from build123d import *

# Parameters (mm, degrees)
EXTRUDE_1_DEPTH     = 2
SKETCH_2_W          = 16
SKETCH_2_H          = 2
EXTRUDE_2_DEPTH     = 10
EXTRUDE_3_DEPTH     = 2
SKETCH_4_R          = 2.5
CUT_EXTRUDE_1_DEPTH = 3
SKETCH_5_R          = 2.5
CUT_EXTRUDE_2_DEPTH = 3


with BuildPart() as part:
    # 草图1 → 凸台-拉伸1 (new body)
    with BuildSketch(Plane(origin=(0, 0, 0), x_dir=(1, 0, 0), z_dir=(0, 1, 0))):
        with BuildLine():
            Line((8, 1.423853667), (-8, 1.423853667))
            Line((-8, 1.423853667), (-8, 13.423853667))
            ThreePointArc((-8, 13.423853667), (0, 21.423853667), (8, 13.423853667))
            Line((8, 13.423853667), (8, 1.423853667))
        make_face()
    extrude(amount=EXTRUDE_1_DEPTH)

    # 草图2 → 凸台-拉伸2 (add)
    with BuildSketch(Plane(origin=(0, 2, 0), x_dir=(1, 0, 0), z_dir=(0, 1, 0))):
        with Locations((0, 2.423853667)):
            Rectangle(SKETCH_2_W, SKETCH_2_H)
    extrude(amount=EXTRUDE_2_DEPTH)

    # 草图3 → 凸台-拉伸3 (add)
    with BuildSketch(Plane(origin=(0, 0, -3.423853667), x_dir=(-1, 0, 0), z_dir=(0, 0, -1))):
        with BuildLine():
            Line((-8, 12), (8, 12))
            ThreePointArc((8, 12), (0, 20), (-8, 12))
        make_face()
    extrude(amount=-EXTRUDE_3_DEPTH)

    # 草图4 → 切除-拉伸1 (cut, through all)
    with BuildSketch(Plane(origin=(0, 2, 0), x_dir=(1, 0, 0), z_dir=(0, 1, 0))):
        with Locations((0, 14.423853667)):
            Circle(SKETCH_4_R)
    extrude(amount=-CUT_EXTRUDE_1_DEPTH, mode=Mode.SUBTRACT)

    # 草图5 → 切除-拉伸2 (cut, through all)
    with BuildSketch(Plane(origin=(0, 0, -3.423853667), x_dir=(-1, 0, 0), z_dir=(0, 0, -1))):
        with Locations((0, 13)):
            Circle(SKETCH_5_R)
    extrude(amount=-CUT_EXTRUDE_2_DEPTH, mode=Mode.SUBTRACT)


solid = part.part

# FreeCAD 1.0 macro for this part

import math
import FreeCAD as App
import Part
import Sketcher
from FreeCAD import Vector

doc = App.newDocument("Part")
body = doc.addObject("PartDesign::Body", "Body")

# Sketch on XZ plane
sketch1 = doc.addObject("Sketcher::SketchObject", "Sketch")
body.addObject(sketch1)
sketch1.AttachmentSupport = (doc.XZ_Plane, [""])
sketch1.MapMode = "FlatFace"
sketch1.addGeometry([
    Part.LineSegment(Vector(-8, -1.423854, 0), Vector(8, -1.423854, 0)),
    Part.LineSegment(Vector(8, -1.423854, 0), Vector(8, -13.423854, 0)),
    Part.ArcOfCircle(Part.Circle(Vector(0, -13.423854, 0), Vector(0, 0, 1), 8), math.radians(180), math.radians(360)),
    Part.LineSegment(Vector(-8, -13.423854, 0), Vector(-8, -1.423854, 0)),
], False)
sketch1.addConstraint([
    Sketcher.Constraint("Coincident", 0, 2, 1, 1),
    Sketcher.Constraint("Tangent", 1, 2, 2, 2),
    Sketcher.Constraint("Tangent", 2, 1, 3, 1),
    Sketcher.Constraint("Coincident", 3, 2, 0, 1),
    Sketcher.Constraint("Horizontal", 0),
    Sketcher.Constraint("Vertical", 1),
    Sketcher.Constraint("Vertical", 3),
    Sketcher.Constraint("PointOnObject", 2, 3, -2),
    Sketcher.Constraint("Radius", 2, 8.0),
    Sketcher.Constraint("DistanceY", 1, 2, 1, 1, 12.0),
    Sketcher.Constraint("DistanceY", 2, 3, -1, 1, 13.423854),
])
pad1 = doc.addObject("PartDesign::Pad", "Pad")
body.addObject(pad1)
pad1.Profile = sketch1
pad1.Length = 2
pad1.Reversed = True

# Sketch on XZ plane
sketch2 = doc.addObject("Sketcher::SketchObject", "Sketch001")
body.addObject(sketch2)
sketch2.AttachmentSupport = (doc.XZ_Plane, [""])
sketch2.MapMode = "FlatFace"
sketch2.AttachmentOffset = App.Placement(Vector(0, 0, -2), App.Rotation())
sketch2.addGeometry([
    Part.LineSegment(Vector(-8, -3.423854, 0), Vector(-8, -1.423854, 0)),
    Part.LineSegment(Vector(-8, -1.423854, 0), Vector(8, -1.423854, 0)),
    Part.LineSegment(Vector(8, -1.423854, 0), Vector(8, -3.423854, 0)),
    Part.LineSegment(Vector(8, -3.423854, 0), Vector(-8, -3.423854, 0)),
], False)
sketch2.addConstraint([
    Sketcher.Constraint("Coincident", 0, 2, 1, 1),
    Sketcher.Constraint("Coincident", 1, 2, 2, 1),
    Sketcher.Constraint("Coincident", 2, 2, 3, 1),
    Sketcher.Constraint("Coincident", 3, 2, 0, 1),
    Sketcher.Constraint("Vertical", 0),
    Sketcher.Constraint("Horizontal", 1),
    Sketcher.Constraint("Vertical", 2),
    Sketcher.Constraint("Horizontal", 3),
    Sketcher.Constraint("DistanceX", 1, 1, 1, 2, 16.0),
    Sketcher.Constraint("DistanceY", 0, 1, 0, 2, 2.0),
    Sketcher.Constraint("DistanceX", 0, 2, -1, 1, 8.0),
    Sketcher.Constraint("DistanceY", 0, 2, -1, 1, 1.423854),
])
pad2 = doc.addObject("PartDesign::Pad", "Pad001")
body.addObject(pad2)
pad2.Profile = sketch2
pad2.Length = 10
pad2.Reversed = True

# Sketch on XY plane
sketch3 = doc.addObject("Sketcher::SketchObject", "Sketch002")
body.addObject(sketch3)
sketch3.AttachmentSupport = (doc.XY_Plane, [""])
sketch3.MapMode = "FlatFace"
sketch3.AttachmentOffset = App.Placement(Vector(0, 0, -3.423854), App.Rotation())
sketch3.addGeometry([
    Part.LineSegment(Vector(8, 12, 0), Vector(-8, 12, 0)),
    Part.ArcOfCircle(Part.Circle(Vector(0, 12, 0), Vector(0, 0, 1), 8), math.radians(0), math.radians(180)),
], False)
sketch3.addConstraint([
    Sketcher.Constraint("Coincident", 0, 1, 1, 1),
    Sketcher.Constraint("Coincident", 1, 2, 0, 2),
    Sketcher.Constraint("Horizontal", 0),
    Sketcher.Constraint("PointOnObject", 1, 3, -2),
    Sketcher.Constraint("Horizontal", 1, 3, 0, 1),
    Sketcher.Constraint("Radius", 1, 8.0),
    Sketcher.Constraint("DistanceY", -1, 1, 1, 3, 12.0),
])
pad3 = doc.addObject("PartDesign::Pad", "Pad002")
body.addObject(pad3)
pad3.Profile = sketch3
pad3.Length = 2

# Sketch on XZ plane
sketch4 = doc.addObject("Sketcher::SketchObject", "Sketch003")
body.addObject(sketch4)
sketch4.AttachmentSupport = (doc.XZ_Plane, [""])
sketch4.MapMode = "FlatFace"
sketch4.AttachmentOffset = App.Placement(Vector(0, 0, -2), App.Rotation())
sketch4.addGeometry(Part.Circle(Vector(0, -14.423854, 0), Vector(0, 0, 1), 2.5), False)
sketch4.addConstraint([
    Sketcher.Constraint("PointOnObject", 0, 3, -2),
    Sketcher.Constraint("Diameter", 0, 5.0),
    Sketcher.Constraint("DistanceY", 0, 3, -1, 1, 14.423854),
])
pocket1 = doc.addObject("PartDesign::Pocket", "Pocket")
body.addObject(pocket1)
pocket1.Profile = sketch4
pocket1.Type = "ThroughAll"
pocket1.Reversed = True

# Sketch on XY plane
sketch5 = doc.addObject("Sketcher::SketchObject", "Sketch004")
body.addObject(sketch5)
sketch5.AttachmentSupport = (doc.XY_Plane, [""])
sketch5.MapMode = "FlatFace"
sketch5.AttachmentOffset = App.Placement(Vector(0, 0, -3.423854), App.Rotation())
sketch5.addGeometry(Part.Circle(Vector(0, 13, 0), Vector(0, 0, 1), 2.5), False)
sketch5.addConstraint([
    Sketcher.Constraint("PointOnObject", 0, 3, -2),
    Sketcher.Constraint("Diameter", 0, 5.0),
    Sketcher.Constraint("DistanceY", -1, 1, 0, 3, 13.0),
])
pocket2 = doc.addObject("PartDesign::Pocket", "Pocket001")
body.addObject(pocket2)
pocket2.Profile = sketch5
pocket2.Type = "ThroughAll"
pocket2.Reversed = True

doc.recompute()
